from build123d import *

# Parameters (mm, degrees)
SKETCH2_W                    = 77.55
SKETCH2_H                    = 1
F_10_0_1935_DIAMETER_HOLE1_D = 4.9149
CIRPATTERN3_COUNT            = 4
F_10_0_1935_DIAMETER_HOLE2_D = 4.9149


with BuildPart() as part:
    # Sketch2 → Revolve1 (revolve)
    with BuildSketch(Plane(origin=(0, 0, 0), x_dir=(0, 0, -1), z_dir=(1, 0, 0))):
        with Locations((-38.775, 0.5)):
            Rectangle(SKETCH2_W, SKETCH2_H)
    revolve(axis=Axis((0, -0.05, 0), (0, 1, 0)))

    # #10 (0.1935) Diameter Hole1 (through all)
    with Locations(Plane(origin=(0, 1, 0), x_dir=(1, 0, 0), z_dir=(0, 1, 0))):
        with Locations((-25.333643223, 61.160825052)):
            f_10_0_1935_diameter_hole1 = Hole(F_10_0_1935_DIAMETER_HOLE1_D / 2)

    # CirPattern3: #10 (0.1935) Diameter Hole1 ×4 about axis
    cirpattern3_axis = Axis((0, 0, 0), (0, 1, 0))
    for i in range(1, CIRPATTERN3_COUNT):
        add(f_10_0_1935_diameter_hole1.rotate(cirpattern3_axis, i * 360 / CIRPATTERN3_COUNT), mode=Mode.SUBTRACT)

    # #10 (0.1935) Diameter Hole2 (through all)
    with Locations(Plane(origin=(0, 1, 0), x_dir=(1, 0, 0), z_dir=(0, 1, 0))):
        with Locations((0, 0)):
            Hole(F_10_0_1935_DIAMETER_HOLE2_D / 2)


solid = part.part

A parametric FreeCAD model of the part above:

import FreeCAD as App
import Part
import Sketcher
Q = App.Units.Quantity


def add_polygon(sketch, points):
    """Adds a closed chain of lines whose ends are joined by coincident constraints."""
    first, n = sketch.GeometryCount, len(points)
    for a, b in zip(points, points[1:] + points[:1]):
        sketch.addGeometry(Part.LineSegment(App.Vector(*a, 0), App.Vector(*b, 0)), False)
    for i in range(n):
        sketch.addConstraint(Sketcher.Constraint("Coincident", first + i, 2, first + (i + 1) % n, 1))

doc = App.newDocument("Part")
params = doc.addObject("Spreadsheet::Sheet", "Params")
for row, (alias, value) in enumerate([
    ("sketch1_width", "1 mm"),
    ("sketch1_height", "77.55 mm"),
    ("revolution_angle", "360 deg"),
    ("hole_diameter", "4.9149 mm"),
    ("hole2_diameter", "4.9149 mm"),
], start=1):
    params.set(f"A{row}", alias)
    params.set(f"B{row}", "=" + value)
    params.setAlias(f"B{row}", alias)

body = doc.addObject("PartDesign::Body", "Body")

# Sketch on YZ plane
sketch1 = body.newObject("Sketcher::SketchObject", "Sketch")
sketch1.AttachmentSupport = (doc.getObject("YZ_Plane"), [""])
sketch1.MapMode = "FlatFace"
add_polygon(sketch1, [(1, 77.55), (0, 77.55), (0, 0), (1, 0)])  # lines 0-3
sketch1.addConstraint([
    Sketcher.Constraint("Horizontal", 0),
    Sketcher.Constraint("Vertical", 1),
    Sketcher.Constraint("Horizontal", 2),
    Sketcher.Constraint("Vertical", 3),
    Sketcher.Constraint("Coincident", 1, 2, -1, 1),
    Sketcher.Constraint("DistanceX", 0, 2, 0, 1, Q("1 mm")),
    Sketcher.Constraint("DistanceY", 1, 2, 1, 1, Q("77.55 mm")),
])
sketch1.setExpression("Constraints[9]", "Params.sketch1_width")
sketch1.setExpression("Constraints[10]", "Params.sketch1_height")
revolution = body.newObject("PartDesign::Revolution", "Revolution")
revolution.Profile = sketch1
revolution.ReferenceAxis = (sketch1, ["H_Axis"])
revolution.setExpression("Angle", "Params.revolution_angle")

# Sketch on XZ plane
sketch2 = body.newObject("Sketcher::SketchObject", "Sketch001")
sketch2.AttachmentSupport = (doc.getObject("XZ_Plane"), [""])
sketch2.MapMode = "FlatFace"
sketch2.AttachmentOffset = App.Placement(App.Vector(0, 0, -1), App.Rotation())
sketch2.addGeometry(Part.Circle(App.Vector(-25.333643, -61.160825, 0), App.Vector(0, 0, 1), 2.45745), False)
sketch2.addConstraint([
    Sketcher.Constraint("Diameter", 0, Q("4.9149 mm")),
    Sketcher.Constraint("DistanceX", 0, 3, -1, 1, Q("25.333643 mm")),
    Sketcher.Constraint("DistanceY", 0, 3, -1, 1, Q("61.160825 mm")),
])
doc.recompute()
hole = body.newObject("PartDesign::Hole", "Hole")
hole.Profile = sketch2
hole.ThreadType = "None"
hole.setExpression("Diameter", "Params.hole_diameter")
hole.DepthType = "ThroughAll"
hole.Reversed = True
doc.recompute()

polarpattern = body.newObject("PartDesign::PolarPattern", "PolarPattern")
polarpattern.Originals = [hole]
polarpattern.Axis = (doc.getObject("Y_Axis"), [""])
polarpattern.Angle = 360
polarpattern.Occurrences = 4
body.Tip = polarpattern

# Sketch on XZ plane
sketch3 = body.newObject("Sketcher::SketchObject", "Sketch002")
sketch3.AttachmentSupport = (doc.getObject("XZ_Plane"), [""])
sketch3.MapMode = "FlatFace"
sketch3.AttachmentOffset = App.Placement(App.Vector(0, 0, -1), App.Rotation())
sketch3.addGeometry(Part.Circle(App.Vector(0, 0, 0), App.Vector(0, 0, 1), 2.45745), False)
sketch3.addConstraint([
    Sketcher.Constraint("Coincident", 0, 3, -1, 1),
    Sketcher.Constraint("Diameter", 0, Q("4.9149 mm")),
])
doc.recompute()
hole2 = body.newObject("PartDesign::Hole", "Hole001")
hole2.Profile = sketch3
hole2.ThreadType = "None"
hole2.setExpression("Diameter", "Params.hole2_diameter")
hole2.DepthType = "ThroughAll"
hole2.Reversed = True

doc.recompute()
